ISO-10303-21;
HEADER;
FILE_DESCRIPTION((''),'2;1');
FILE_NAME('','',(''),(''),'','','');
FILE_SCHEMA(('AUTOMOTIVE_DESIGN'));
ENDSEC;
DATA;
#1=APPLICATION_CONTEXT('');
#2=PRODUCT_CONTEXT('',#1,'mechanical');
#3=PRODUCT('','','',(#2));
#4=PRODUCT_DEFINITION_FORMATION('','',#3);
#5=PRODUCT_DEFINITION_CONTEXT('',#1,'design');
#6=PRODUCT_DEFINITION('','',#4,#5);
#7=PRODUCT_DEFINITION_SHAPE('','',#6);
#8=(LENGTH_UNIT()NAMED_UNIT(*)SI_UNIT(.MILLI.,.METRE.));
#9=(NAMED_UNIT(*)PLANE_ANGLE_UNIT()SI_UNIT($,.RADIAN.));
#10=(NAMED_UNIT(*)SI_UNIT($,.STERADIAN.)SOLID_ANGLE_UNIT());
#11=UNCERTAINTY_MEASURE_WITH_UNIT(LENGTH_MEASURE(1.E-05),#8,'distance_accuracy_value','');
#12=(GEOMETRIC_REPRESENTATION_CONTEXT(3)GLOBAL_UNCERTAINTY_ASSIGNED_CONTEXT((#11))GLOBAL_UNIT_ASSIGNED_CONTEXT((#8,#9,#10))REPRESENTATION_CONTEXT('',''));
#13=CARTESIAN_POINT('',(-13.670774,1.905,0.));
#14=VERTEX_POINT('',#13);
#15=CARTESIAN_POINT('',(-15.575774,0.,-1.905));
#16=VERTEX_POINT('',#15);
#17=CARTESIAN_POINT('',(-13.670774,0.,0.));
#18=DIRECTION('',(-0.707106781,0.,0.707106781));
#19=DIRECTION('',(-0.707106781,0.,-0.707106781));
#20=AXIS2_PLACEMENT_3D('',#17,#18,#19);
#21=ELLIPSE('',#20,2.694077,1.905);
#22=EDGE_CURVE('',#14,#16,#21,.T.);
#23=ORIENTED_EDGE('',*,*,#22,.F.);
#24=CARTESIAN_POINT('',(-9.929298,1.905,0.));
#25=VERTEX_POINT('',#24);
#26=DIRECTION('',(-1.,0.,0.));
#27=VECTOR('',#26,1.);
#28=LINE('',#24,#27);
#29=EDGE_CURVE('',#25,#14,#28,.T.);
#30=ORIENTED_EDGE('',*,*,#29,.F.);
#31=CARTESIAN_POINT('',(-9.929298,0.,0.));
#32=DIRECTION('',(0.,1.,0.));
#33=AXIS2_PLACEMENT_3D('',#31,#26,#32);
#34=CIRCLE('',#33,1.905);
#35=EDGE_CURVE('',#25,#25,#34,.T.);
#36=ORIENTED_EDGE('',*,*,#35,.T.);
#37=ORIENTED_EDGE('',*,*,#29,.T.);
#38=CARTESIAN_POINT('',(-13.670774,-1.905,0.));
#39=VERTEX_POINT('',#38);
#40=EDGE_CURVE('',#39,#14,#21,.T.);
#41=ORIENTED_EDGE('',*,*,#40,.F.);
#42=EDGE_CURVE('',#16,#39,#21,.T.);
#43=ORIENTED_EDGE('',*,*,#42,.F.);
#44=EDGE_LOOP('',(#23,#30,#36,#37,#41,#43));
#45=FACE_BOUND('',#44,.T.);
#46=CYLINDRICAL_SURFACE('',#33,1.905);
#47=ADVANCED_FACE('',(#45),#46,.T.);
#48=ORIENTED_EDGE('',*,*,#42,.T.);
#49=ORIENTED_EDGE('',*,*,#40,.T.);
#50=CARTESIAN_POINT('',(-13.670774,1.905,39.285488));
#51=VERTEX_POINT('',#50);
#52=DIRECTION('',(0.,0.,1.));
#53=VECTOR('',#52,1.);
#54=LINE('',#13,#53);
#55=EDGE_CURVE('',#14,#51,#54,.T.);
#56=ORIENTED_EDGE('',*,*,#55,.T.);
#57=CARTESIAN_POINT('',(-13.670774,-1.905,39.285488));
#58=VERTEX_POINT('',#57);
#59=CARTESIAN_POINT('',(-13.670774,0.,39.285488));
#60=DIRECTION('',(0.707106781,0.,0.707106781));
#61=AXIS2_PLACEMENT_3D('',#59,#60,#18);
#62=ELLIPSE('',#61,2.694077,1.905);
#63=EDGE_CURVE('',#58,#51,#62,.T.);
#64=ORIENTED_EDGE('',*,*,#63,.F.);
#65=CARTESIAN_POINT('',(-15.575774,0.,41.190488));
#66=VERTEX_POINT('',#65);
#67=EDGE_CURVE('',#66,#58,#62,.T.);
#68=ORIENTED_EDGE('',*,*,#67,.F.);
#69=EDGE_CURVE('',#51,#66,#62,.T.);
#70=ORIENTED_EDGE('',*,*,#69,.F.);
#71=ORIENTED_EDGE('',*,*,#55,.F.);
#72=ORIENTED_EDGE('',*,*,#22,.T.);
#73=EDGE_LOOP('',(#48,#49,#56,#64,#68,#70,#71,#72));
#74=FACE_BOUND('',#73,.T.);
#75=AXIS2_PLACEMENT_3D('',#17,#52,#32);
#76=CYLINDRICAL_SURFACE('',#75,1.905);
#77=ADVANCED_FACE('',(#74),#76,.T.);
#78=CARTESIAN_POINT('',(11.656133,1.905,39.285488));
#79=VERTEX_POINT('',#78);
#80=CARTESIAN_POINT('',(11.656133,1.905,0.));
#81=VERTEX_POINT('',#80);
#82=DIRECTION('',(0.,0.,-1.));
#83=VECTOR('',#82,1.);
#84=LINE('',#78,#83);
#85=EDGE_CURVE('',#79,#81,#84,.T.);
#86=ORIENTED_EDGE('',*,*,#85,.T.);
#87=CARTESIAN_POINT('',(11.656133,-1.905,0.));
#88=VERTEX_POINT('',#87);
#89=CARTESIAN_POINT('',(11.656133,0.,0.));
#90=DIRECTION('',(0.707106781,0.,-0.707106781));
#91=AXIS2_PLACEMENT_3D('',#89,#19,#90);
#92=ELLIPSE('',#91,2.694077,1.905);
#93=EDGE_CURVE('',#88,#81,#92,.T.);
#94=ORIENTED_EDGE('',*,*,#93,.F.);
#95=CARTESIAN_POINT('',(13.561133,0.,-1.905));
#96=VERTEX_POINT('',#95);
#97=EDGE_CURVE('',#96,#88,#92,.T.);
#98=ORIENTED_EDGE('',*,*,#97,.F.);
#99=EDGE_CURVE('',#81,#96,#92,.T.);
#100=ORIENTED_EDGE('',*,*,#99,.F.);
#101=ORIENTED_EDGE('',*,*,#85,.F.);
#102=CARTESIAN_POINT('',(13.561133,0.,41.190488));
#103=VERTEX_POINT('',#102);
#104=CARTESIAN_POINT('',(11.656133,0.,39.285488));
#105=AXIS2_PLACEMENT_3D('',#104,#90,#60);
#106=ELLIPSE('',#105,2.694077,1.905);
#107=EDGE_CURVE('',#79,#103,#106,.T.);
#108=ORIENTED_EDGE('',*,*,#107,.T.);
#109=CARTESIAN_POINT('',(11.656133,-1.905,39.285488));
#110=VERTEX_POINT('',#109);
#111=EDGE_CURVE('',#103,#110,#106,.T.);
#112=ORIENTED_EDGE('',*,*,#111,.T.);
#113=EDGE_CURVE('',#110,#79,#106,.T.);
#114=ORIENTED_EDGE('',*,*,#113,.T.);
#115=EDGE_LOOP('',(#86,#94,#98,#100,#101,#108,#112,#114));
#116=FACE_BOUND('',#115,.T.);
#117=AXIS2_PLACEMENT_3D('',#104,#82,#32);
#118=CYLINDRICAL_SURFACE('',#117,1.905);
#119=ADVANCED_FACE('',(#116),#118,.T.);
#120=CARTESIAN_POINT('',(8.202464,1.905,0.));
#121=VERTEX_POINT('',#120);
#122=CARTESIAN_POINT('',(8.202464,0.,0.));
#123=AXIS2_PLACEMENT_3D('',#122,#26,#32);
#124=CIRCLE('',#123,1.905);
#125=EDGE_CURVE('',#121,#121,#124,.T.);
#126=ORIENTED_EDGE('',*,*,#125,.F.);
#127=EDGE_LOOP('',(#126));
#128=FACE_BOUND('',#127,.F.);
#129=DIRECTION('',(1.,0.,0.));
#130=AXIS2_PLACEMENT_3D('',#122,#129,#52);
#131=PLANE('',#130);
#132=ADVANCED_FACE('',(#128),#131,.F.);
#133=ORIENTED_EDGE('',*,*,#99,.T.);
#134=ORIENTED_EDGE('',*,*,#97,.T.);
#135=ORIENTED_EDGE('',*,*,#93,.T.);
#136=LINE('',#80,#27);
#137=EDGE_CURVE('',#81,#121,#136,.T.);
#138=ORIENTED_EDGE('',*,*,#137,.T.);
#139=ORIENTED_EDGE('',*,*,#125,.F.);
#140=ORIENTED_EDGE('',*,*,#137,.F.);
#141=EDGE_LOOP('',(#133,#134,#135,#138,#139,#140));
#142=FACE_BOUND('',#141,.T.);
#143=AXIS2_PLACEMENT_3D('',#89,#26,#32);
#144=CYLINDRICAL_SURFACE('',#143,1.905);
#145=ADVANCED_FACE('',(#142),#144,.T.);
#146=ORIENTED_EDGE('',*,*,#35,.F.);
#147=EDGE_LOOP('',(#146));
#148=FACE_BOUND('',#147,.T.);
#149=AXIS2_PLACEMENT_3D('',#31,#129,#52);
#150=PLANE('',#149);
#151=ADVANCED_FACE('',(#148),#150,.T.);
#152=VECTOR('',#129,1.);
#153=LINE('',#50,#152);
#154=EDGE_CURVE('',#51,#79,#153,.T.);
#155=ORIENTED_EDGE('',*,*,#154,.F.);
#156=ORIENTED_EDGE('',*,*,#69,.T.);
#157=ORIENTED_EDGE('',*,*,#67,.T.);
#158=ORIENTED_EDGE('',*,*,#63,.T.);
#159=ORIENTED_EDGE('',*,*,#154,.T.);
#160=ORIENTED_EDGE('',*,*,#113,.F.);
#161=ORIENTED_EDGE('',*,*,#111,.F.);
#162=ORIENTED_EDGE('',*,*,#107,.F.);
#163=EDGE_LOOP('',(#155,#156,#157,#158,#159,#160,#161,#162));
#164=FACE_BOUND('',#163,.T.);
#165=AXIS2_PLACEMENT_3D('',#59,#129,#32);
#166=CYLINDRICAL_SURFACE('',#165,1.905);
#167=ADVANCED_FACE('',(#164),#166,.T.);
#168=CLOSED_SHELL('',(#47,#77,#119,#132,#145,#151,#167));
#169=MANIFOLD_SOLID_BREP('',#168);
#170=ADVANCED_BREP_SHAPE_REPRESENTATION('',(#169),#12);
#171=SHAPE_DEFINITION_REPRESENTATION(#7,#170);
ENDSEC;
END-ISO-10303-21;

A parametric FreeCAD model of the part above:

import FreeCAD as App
import Part
import Sketcher
from FreeCAD import Vector
Q = App.Units.Quantity

doc = App.newDocument("Part")
body = doc.addObject("PartDesign::Body", "Body")

sketch1 = doc.addObject("Sketcher::SketchObject", "Sketch")
body.addObject(sketch1)
sketch1.AttachmentSupport = (doc.YZ_Plane, [""])
sketch1.MapMode = "FlatFace"
sketch1.AttachmentOffset = App.Placement(Vector(0, 0, -0.395 * 25.4), App.Rotation())
sketch1.addGeometry(Part.Circle(Vector(0, 0, 0), Vector(0, 0, 1), 1.9), False)
sketch1.addConstraint([
    Sketcher.Constraint("Coincident", 0, 3, -1, 1),
    Sketcher.Constraint("Diameter", 0, Q("0.15 in")),
])

sketch2 = doc.addObject("Sketcher::SketchObject", "Sketch001")
body.addObject(sketch2)
sketch2.AttachmentSupport = (doc.XZ_Plane, [""])
sketch2.MapMode = "FlatFace"
sketch2.addGeometry([
    Part.LineSegment(Vector(-9.9, 0, 0), Vector(-13.7, 0, 0)),
    Part.LineSegment(Vector(-13.7, 0, 0), Vector(-13.7, 39.3, 0)),
    Part.LineSegment(Vector(-13.7, 39.3, 0), Vector(11.7, 39.3, 0)),
    Part.LineSegment(Vector(11.7, 39.3, 0), Vector(11.7, 0, 0)),
    Part.LineSegment(Vector(11.7, 0, 0), Vector(8.2, 0, 0)),
], False)
sketch2.addConstraint([
    Sketcher.Constraint("Coincident", 0, 2, 1, 1),
    Sketcher.Constraint("Coincident", 1, 2, 2, 1),
    Sketcher.Constraint("Coincident", 2, 2, 3, 1),
    Sketcher.Constraint("Coincident", 3, 2, 4, 1),
    Sketcher.Constraint("Horizontal", 0),
    Sketcher.Constraint("Vertical", 1),
    Sketcher.Constraint("Horizontal", 2),
    Sketcher.Constraint("Vertical", 3),
    Sketcher.Constraint("Horizontal", 4),
    Sketcher.Constraint("PointOnObject", 0, 1, -1),
    Sketcher.Constraint("PointOnObject", 3, 2, -1),
    Sketcher.Constraint("DistanceX", 4, 2, 4, 1, Q("3.453668 mm")),
    Sketcher.Constraint("DistanceY", 1, 1, 1, 2, Q("39.285488 mm")),
    Sketcher.Constraint("DistanceX", 0, 1, -1, 1, Q("9.929298 mm")),
    Sketcher.Constraint("DistanceX", 0, 2, 0, 1, Q("3.741476 mm")),
    Sketcher.Constraint("DistanceX", 2, 1, 2, 2, Q("25.326907 mm")),
])
doc.recompute()

additivepipe = doc.addObject("PartDesign::AdditivePipe", "AdditivePipe")
body.addObject(additivepipe)
additivepipe.Profile = sketch1
additivepipe.Spine = (sketch2, ["Edge1", "Edge2", "Edge3", "Edge4", "Edge5"])
additivepipe.Transition = "Right corner"

doc.recompute()
